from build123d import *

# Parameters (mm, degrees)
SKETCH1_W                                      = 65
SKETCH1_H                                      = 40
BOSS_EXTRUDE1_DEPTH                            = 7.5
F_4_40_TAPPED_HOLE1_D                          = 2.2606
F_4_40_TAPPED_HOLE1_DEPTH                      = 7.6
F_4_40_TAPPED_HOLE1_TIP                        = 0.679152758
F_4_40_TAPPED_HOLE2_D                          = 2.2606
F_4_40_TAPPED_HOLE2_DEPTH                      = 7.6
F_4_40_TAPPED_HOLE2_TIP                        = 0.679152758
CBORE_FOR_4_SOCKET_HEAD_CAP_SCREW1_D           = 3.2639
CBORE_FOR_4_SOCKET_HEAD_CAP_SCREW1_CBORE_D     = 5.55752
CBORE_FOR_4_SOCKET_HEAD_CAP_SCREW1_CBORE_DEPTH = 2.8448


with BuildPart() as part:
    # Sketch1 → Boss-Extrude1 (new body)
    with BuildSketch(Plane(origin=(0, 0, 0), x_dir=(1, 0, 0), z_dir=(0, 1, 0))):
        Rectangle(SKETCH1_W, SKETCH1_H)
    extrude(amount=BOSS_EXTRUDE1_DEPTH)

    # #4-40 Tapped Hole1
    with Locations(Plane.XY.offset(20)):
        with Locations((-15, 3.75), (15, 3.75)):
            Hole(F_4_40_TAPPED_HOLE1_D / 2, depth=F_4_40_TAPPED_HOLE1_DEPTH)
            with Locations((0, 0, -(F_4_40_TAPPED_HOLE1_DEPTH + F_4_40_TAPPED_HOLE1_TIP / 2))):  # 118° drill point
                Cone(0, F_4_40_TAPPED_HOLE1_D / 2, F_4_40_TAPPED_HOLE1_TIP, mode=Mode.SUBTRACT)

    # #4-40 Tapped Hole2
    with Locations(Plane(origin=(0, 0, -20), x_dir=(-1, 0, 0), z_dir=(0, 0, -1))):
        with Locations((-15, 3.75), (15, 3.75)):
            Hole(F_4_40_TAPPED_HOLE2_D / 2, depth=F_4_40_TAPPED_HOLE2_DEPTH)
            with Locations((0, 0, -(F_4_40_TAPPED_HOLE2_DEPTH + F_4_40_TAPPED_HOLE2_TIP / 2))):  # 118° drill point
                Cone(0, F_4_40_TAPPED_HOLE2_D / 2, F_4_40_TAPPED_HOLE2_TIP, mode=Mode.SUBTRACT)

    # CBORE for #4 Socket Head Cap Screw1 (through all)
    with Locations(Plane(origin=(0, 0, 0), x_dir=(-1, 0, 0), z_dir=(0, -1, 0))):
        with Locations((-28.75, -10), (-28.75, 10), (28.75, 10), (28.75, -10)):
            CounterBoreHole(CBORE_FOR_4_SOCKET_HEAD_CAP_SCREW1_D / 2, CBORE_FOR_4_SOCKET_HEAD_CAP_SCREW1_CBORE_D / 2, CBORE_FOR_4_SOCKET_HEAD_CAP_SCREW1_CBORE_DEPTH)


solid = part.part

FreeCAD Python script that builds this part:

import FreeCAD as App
import Part
import Sketcher
from FreeCAD import Vector
Q = App.Units.Quantity


def add_polygon(sketch, points):
    """Adds a closed chain of lines whose ends are joined by coincident constraints."""
    first, n = sketch.GeometryCount, len(points)
    for a, b in zip(points, points[1:] + points[:1]):
        sketch.addGeometry(Part.LineSegment(App.Vector(*a, 0), App.Vector(*b, 0)), False)
    for i in range(n):
        sketch.addConstraint(Sketcher.Constraint("Coincident", first + i, 2, first + (i + 1) % n, 1))

doc = App.newDocument("Part")
body = doc.addObject("PartDesign::Body", "Body")

# Sketch on XZ plane
sketch1 = doc.addObject("Sketcher::SketchObject", "Sketch")
body.addObject(sketch1)
sketch1.AttachmentSupport = (doc.XZ_Plane, [""])
sketch1.MapMode = "FlatFace"
add_polygon(sketch1, [(-32, -20), (-32, 20), (32, 20), (32, -20)])  # lines 0-3
sketch1.addConstraint(Sketcher.Constraint("Vertical", 0))
sketch1.addConstraint(Sketcher.Constraint("Horizontal", 1))
sketch1.addConstraint(Sketcher.Constraint("Vertical", 2))
sketch1.addConstraint(Sketcher.Constraint("Horizontal", 3))
sketch1.addConstraint(Sketcher.Constraint("Symmetric", 0, 2, 2, 2, -1, 1))
sketch1.addConstraint(Sketcher.Constraint("DistanceX", 1, 1, 1, 2, Q("65 mm")))
sketch1.addConstraint(Sketcher.Constraint("DistanceY", 0, 1, 0, 2, Q("40 mm")))
pad1 = doc.addObject("PartDesign::Pad", "Pad")
body.addObject(pad1)
pad1.Profile = sketch1
pad1.Length = 7.5
pad1.Reversed = True

# Sketch on XY plane
sketch2 = doc.addObject("Sketcher::SketchObject", "Sketch001")
body.addObject(sketch2)
sketch2.AttachmentSupport = (doc.XY_Plane, [""])
sketch2.MapMode = "FlatFace"
sketch2.AttachmentOffset = App.Placement(Vector(0, 0, 20), App.Rotation())
sketch2.addGeometry(Part.Circle(Vector(-15, 3.8, 0), Vector(0, 0, 1), 1.1), False)
sketch2.addGeometry(Part.Circle(Vector(15, 3.8, 0), Vector(0, 0, 1), 1.1), False)
sketch2.addConstraint(Sketcher.Constraint("Equal", 0, 1))
sketch2.addConstraint(Sketcher.Constraint("Symmetric", 0, 3, 1, 3, -2))
sketch2.addConstraint(Sketcher.Constraint("DistanceX", 0, 3, -1, 1, Q("15 mm")))
sketch2.addConstraint(Sketcher.Constraint("Diameter", 0, Q("2.2606 mm")))
sketch2.addConstraint(Sketcher.Constraint("DistanceY", -1, 1, 0, 3, Q("3.75 mm")))
doc.recompute()
hole = doc.addObject("PartDesign::Hole", "Hole")
body.addObject(hole)
hole.Profile = sketch2
hole.ThreadType = "None"
hole.Diameter = 2.2606
hole.DepthType = "Dimension"
hole.Depth = 7.6
hole.DrillPoint = "Angled"
hole.DrillPointAngle = 118

# Sketch on XY plane
sketch3 = doc.addObject("Sketcher::SketchObject", "Sketch002")
body.addObject(sketch3)
sketch3.AttachmentSupport = (doc.XY_Plane, [""])
sketch3.MapMode = "FlatFace"
sketch3.AttachmentOffset = App.Placement(Vector(0, 0, -20), App.Rotation())
sketch3.addGeometry(Part.Circle(Vector(15, 3.8, 0), Vector(0, 0, 1), 1.1), False)
sketch3.addGeometry(Part.Circle(Vector(-15, 3.8, 0), Vector(0, 0, 1), 1.1), False)
sketch3.addConstraint(Sketcher.Constraint("Equal", 0, 1))
sketch3.addConstraint(Sketcher.Constraint("Symmetric", 0, 3, 1, 3, -2))
sketch3.addConstraint(Sketcher.Constraint("DistanceX", -1, 1, 0, 3, Q("15 mm")))
sketch3.addConstraint(Sketcher.Constraint("Diameter", 0, Q("2.2606 mm")))
sketch3.addConstraint(Sketcher.Constraint("DistanceY", -1, 1, 0, 3, Q("3.75 mm")))
doc.recompute()
hole2 = doc.addObject("PartDesign::Hole", "Hole001")
body.addObject(hole2)
hole2.Profile = sketch3
hole2.ThreadType = "None"
hole2.Diameter = 2.2606
hole2.DepthType = "Dimension"
hole2.Depth = 7.6
hole2.DrillPoint = "Angled"
hole2.DrillPointAngle = 118
hole2.Reversed = True

# Sketch on XZ plane
sketch4 = doc.addObject("Sketcher::SketchObject", "Sketch003")
body.addObject(sketch4)
sketch4.AttachmentSupport = (doc.XZ_Plane, [""])
sketch4.MapMode = "FlatFace"
sketch4.addGeometry(Part.Circle(Vector(28.8, 10, 0), Vector(0, 0, 1), 1.6), False)
sketch4.addGeometry(Part.Circle(Vector(28.8, -10, 0), Vector(0, 0, 1), 1.6), False)
sketch4.addGeometry(Part.Circle(Vector(-28.8, -10, 0), Vector(0, 0, 1), 1.6), False)
sketch4.addGeometry(Part.Circle(Vector(-28.8, 10, 0), Vector(0, 0, 1), 1.6), False)
sketch4.addConstraint(Sketcher.Constraint("Equal", 0, 1))
sketch4.addConstraint(Sketcher.Constraint("Equal", 1, 2))
sketch4.addConstraint(Sketcher.Constraint("Equal", 2, 3))
sketch4.addConstraint(Sketcher.Constraint("Symmetric", 0, 3, 2, 3, -1, 1))
sketch4.addConstraint(Sketcher.Constraint("Symmetric", 1, 3, 3, 3, -1, 1))
sketch4.addConstraint(Sketcher.Constraint("Symmetric", 1, 3, 2, 3, -2))
sketch4.addConstraint(Sketcher.Constraint("DistanceY", -1, 1, 0, 3, Q("10 mm")))
sketch4.addConstraint(Sketcher.Constraint("Diameter", 0, Q("3.2639 mm")))
sketch4.addConstraint(Sketcher.Constraint("DistanceX", 2, 3, 1, 3, Q("57.5 mm")))
doc.recompute()
hole3 = doc.addObject("PartDesign::Hole", "Hole002")
body.addObject(hole3)
hole3.Profile = sketch4
hole3.ThreadType = "None"
hole3.Diameter = 3.2639
hole3.DepthType = "ThroughAll"
hole3.HoleCutType = "Counterbore"
hole3.HoleCutDiameter = 5.55752
hole3.HoleCutDepth = 2.8448

doc.recompute()
